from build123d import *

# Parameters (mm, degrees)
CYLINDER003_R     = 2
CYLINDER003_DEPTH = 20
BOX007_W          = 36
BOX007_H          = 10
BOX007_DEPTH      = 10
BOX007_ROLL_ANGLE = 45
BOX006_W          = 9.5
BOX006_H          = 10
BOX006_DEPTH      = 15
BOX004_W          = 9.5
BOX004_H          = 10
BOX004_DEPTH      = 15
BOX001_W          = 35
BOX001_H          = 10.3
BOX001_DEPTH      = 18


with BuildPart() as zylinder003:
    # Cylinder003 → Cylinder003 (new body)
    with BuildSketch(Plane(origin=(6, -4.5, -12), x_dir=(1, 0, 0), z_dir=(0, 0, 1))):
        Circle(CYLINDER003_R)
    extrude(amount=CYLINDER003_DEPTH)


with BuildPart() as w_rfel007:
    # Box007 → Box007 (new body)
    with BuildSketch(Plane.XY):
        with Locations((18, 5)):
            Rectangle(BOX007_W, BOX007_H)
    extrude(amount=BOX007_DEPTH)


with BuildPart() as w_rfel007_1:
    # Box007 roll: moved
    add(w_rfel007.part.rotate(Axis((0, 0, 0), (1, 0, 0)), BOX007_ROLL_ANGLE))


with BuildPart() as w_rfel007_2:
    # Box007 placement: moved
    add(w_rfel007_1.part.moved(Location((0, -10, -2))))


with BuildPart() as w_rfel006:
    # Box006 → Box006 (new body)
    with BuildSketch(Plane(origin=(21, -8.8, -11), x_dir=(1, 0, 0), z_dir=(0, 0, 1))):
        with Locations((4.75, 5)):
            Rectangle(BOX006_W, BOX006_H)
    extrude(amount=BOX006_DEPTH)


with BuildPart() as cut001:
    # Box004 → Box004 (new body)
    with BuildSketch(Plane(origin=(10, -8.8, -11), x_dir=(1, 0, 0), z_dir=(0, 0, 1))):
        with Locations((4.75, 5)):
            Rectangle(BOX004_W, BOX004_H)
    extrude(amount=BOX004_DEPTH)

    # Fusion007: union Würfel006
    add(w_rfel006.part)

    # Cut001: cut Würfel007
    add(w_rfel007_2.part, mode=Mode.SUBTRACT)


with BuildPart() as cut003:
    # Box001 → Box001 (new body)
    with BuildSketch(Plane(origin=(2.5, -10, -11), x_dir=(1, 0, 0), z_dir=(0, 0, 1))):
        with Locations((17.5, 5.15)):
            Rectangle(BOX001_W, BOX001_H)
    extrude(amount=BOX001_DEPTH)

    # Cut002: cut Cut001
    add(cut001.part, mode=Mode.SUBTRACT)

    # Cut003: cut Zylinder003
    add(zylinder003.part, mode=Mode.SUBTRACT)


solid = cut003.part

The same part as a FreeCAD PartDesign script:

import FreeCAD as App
import Part
import Sketcher
Q = App.Units.Quantity


def add_polygon(sketch, points):
    """Adds a closed chain of lines whose ends are joined by coincident constraints."""
    first, n = sketch.GeometryCount, len(points)
    for a, b in zip(points, points[1:] + points[:1]):
        sketch.addGeometry(Part.LineSegment(App.Vector(*a, 0), App.Vector(*b, 0)), False)
    for i in range(n):
        sketch.addConstraint(Sketcher.Constraint("Coincident", first + i, 2, first + (i + 1) % n, 1))

doc = App.newDocument("Part")
params = doc.addObject("Spreadsheet::Sheet", "Params")
for row, (alias, value) in enumerate([
    ("sketch1_diameter", "4 mm"),
    ("pad1_length", "20 mm"),
    ("sketch2_width", "36 mm"),
    ("sketch2_height", "10 mm"),
    ("pad2_length", "10 mm"),
    ("sketch3_height", "10 mm"),
    ("sketch3_width", "9.5 mm"),
    ("pad3_length", "15 mm"),
    ("sketch4_height", "10 mm"),
    ("sketch4_width", "9.5 mm"),
    ("pad4_length", "15 mm"),
    ("sketch5_width", "35 mm"),
    ("sketch5_height", "10.3 mm"),
    ("pad5_length", "18 mm"),
], start=1):
    params.set(f"A{row}", alias)
    params.set(f"B{row}", "=" + value)
    params.setAlias(f"B{row}", alias)

body = doc.addObject("PartDesign::Body", "Body")

sketch1 = body.newObject("Sketcher::SketchObject", "Sketch")
sketch1.AttachmentSupport = (doc.getObject("XY_Plane"), [""])
sketch1.MapMode = "FlatFace"
sketch1.AttachmentOffset = App.Placement(App.Vector(0, 0, -12), App.Rotation())
sketch1.addGeometry(Part.Circle(App.Vector(6, -4.5, 0), App.Vector(0, 0, 1), 2), False)
sketch1.addConstraint([
    Sketcher.Constraint("Diameter", 0, Q("4 mm")),
    Sketcher.Constraint("DistanceX", -1, 1, 0, 3, Q("6 mm")),
    Sketcher.Constraint("DistanceY", 0, 3, -1, 1, Q("4.5 mm")),
])
sketch1.setExpression("Constraints[0]", "Params.sketch1_diameter")
pad1 = body.newObject("PartDesign::Pad", "Pad")
pad1.Profile = sketch1
pad1.setExpression("Length", "Params.pad1_length")
body2 = doc.addObject("PartDesign::Body", "Body001")

sketch2 = body2.newObject("Sketcher::SketchObject", "Sketch001")
sketch2.AttachmentSupport = (doc.getObject("XY_Plane001"), [""])
sketch2.MapMode = "FlatFace"
add_polygon(sketch2, [(0, 10), (0, 0), (36, 0), (36, 10)])
sketch2.addConstraint([
    Sketcher.Constraint("Vertical", 0),
    Sketcher.Constraint("Horizontal", 1),
    Sketcher.Constraint("Vertical", 2),
    Sketcher.Constraint("Horizontal", 3),
    Sketcher.Constraint("Coincident", 0, 2, -1, 1),
    Sketcher.Constraint("DistanceX", 1, 1, 1, 2, Q("36 mm")),
    Sketcher.Constraint("DistanceY", 0, 2, 0, 1, Q("10 mm")),
])
sketch2.setExpression("Constraints[9]", "Params.sketch2_width")
sketch2.setExpression("Constraints[10]", "Params.sketch2_height")
pad2 = body2.newObject("PartDesign::Pad", "Pad001")
pad2.Profile = sketch2
pad2.setExpression("Length", "Params.pad2_length")
body3 = doc.addObject("PartDesign::Body", "Body002")
doc.recompute()

body2.Placement = App.Placement(App.Vector(0, 0, 0), App.Rotation(App.Vector(1, 0, 0), 45))
boolean = body3.newObject("PartDesign::Boolean", "Boolean")
boolean.Type = "Fuse"
boolean.addObjects([body2])
body4 = doc.addObject("PartDesign::Body", "Body003")
doc.recompute()

body3.Placement = App.Placement(App.Vector(0, -10, -2), App.Rotation(App.Vector(0, 0, 1), 0))
boolean2 = body4.newObject("PartDesign::Boolean", "Boolean001")
boolean2.Type = "Fuse"
boolean2.addObjects([body3])
body5 = doc.addObject("PartDesign::Body", "Body004")

sketch3 = body5.newObject("Sketcher::SketchObject", "Sketch002")
sketch3.AttachmentSupport = (doc.getObject("XY_Plane004"), [""])
sketch3.MapMode = "FlatFace"
sketch3.AttachmentOffset = App.Placement(App.Vector(0, 0, -11), App.Rotation())
add_polygon(sketch3, [(21, 1), (21, -9), (30, -9), (30, 1)])
sketch3.addConstraint([
    Sketcher.Constraint("Vertical", 0),
    Sketcher.Constraint("Horizontal", 1),
    Sketcher.Constraint("Vertical", 2),
    Sketcher.Constraint("Horizontal", 3),
    Sketcher.Constraint("DistanceY", 0, 2, 0, 1, Q("10 mm")),
    Sketcher.Constraint("DistanceX", 1, 1, 1, 2, Q("9.5 mm")),
    Sketcher.Constraint("DistanceX", -1, 1, 0, 2, Q("21 mm")),
    Sketcher.Constraint("DistanceY", 0, 2, -1, 1, Q("8.8 mm")),
])
sketch3.setExpression("Constraints[8]", "Params.sketch3_height")
sketch3.setExpression("Constraints[9]", "Params.sketch3_width")
pad3 = body5.newObject("PartDesign::Pad", "Pad002")
pad3.Profile = sketch3
pad3.setExpression("Length", "Params.pad3_length")
body6 = doc.addObject("PartDesign::Body", "Body005")
body6.AllowCompound = True

sketch4 = body6.newObject("Sketcher::SketchObject", "Sketch003")
sketch4.AttachmentSupport = (doc.getObject("XY_Plane005"), [""])
sketch4.MapMode = "FlatFace"
sketch4.AttachmentOffset = App.Placement(App.Vector(0, 0, -11), App.Rotation())
add_polygon(sketch4, [(10, 1), (10, -9), (20, -9), (20, 1)])
sketch4.addConstraint([
    Sketcher.Constraint("Vertical", 0),
    Sketcher.Constraint("Horizontal", 1),
    Sketcher.Constraint("Vertical", 2),
    Sketcher.Constraint("Horizontal", 3),
    Sketcher.Constraint("DistanceY", 0, 2, 0, 1, Q("10 mm")),
    Sketcher.Constraint("DistanceX", 1, 1, 1, 2, Q("9.5 mm")),
    Sketcher.Constraint("DistanceX", -1, 1, 0, 2, Q("10 mm")),
    Sketcher.Constraint("DistanceY", 0, 2, -1, 1, Q("8.8 mm")),
])
sketch4.setExpression("Constraints[8]", "Params.sketch4_height")
sketch4.setExpression("Constraints[9]", "Params.sketch4_width")
pad4 = body6.newObject("PartDesign::Pad", "Pad003")
pad4.Profile = sketch4
pad4.setExpression("Length", "Params.pad4_length")
doc.recompute()

boolean3 = body6.newObject("PartDesign::Boolean", "Boolean002")
boolean3.Type = "Fuse"
boolean3.addObjects([body5])
doc.recompute()

boolean4 = body6.newObject("PartDesign::Boolean", "Boolean003")
boolean4.Type = "Cut"
boolean4.addObjects([body4])
body7 = doc.addObject("PartDesign::Body", "Body006")

sketch5 = body7.newObject("Sketcher::SketchObject", "Sketch004")
sketch5.AttachmentSupport = (doc.getObject("XY_Plane006"), [""])
sketch5.MapMode = "FlatFace"
sketch5.AttachmentOffset = App.Placement(App.Vector(0, 0, -11), App.Rotation())
add_polygon(sketch5, [(2, 0), (2, -10), (38, -10), (38, 0)])
sketch5.addConstraint([
    Sketcher.Constraint("Vertical", 0),
    Sketcher.Constraint("Horizontal", 1),
    Sketcher.Constraint("Vertical", 2),
    Sketcher.Constraint("Horizontal", 3),
    Sketcher.Constraint("DistanceX", 1, 1, 1, 2, Q("35 mm")),
    Sketcher.Constraint("DistanceY", 0, 2, 0, 1, Q("10.3 mm")),
    Sketcher.Constraint("DistanceY", 0, 2, -1, 1, Q("10 mm")),
    Sketcher.Constraint("DistanceX", -1, 1, 0, 2, Q("2.5 mm")),
])
sketch5.setExpression("Constraints[8]", "Params.sketch5_width")
sketch5.setExpression("Constraints[9]", "Params.sketch5_height")
pad5 = body7.newObject("PartDesign::Pad", "Pad004")
pad5.Profile = sketch5
pad5.setExpression("Length", "Params.pad5_length")
doc.recompute()

boolean5 = body7.newObject("PartDesign::Boolean", "Boolean004")
boolean5.Type = "Cut"
boolean5.addObjects([body6])
doc.recompute()

boolean6 = body7.newObject("PartDesign::Boolean", "Boolean005")
boolean6.Type = "Cut"
boolean6.addObjects([body])

doc.recompute()
